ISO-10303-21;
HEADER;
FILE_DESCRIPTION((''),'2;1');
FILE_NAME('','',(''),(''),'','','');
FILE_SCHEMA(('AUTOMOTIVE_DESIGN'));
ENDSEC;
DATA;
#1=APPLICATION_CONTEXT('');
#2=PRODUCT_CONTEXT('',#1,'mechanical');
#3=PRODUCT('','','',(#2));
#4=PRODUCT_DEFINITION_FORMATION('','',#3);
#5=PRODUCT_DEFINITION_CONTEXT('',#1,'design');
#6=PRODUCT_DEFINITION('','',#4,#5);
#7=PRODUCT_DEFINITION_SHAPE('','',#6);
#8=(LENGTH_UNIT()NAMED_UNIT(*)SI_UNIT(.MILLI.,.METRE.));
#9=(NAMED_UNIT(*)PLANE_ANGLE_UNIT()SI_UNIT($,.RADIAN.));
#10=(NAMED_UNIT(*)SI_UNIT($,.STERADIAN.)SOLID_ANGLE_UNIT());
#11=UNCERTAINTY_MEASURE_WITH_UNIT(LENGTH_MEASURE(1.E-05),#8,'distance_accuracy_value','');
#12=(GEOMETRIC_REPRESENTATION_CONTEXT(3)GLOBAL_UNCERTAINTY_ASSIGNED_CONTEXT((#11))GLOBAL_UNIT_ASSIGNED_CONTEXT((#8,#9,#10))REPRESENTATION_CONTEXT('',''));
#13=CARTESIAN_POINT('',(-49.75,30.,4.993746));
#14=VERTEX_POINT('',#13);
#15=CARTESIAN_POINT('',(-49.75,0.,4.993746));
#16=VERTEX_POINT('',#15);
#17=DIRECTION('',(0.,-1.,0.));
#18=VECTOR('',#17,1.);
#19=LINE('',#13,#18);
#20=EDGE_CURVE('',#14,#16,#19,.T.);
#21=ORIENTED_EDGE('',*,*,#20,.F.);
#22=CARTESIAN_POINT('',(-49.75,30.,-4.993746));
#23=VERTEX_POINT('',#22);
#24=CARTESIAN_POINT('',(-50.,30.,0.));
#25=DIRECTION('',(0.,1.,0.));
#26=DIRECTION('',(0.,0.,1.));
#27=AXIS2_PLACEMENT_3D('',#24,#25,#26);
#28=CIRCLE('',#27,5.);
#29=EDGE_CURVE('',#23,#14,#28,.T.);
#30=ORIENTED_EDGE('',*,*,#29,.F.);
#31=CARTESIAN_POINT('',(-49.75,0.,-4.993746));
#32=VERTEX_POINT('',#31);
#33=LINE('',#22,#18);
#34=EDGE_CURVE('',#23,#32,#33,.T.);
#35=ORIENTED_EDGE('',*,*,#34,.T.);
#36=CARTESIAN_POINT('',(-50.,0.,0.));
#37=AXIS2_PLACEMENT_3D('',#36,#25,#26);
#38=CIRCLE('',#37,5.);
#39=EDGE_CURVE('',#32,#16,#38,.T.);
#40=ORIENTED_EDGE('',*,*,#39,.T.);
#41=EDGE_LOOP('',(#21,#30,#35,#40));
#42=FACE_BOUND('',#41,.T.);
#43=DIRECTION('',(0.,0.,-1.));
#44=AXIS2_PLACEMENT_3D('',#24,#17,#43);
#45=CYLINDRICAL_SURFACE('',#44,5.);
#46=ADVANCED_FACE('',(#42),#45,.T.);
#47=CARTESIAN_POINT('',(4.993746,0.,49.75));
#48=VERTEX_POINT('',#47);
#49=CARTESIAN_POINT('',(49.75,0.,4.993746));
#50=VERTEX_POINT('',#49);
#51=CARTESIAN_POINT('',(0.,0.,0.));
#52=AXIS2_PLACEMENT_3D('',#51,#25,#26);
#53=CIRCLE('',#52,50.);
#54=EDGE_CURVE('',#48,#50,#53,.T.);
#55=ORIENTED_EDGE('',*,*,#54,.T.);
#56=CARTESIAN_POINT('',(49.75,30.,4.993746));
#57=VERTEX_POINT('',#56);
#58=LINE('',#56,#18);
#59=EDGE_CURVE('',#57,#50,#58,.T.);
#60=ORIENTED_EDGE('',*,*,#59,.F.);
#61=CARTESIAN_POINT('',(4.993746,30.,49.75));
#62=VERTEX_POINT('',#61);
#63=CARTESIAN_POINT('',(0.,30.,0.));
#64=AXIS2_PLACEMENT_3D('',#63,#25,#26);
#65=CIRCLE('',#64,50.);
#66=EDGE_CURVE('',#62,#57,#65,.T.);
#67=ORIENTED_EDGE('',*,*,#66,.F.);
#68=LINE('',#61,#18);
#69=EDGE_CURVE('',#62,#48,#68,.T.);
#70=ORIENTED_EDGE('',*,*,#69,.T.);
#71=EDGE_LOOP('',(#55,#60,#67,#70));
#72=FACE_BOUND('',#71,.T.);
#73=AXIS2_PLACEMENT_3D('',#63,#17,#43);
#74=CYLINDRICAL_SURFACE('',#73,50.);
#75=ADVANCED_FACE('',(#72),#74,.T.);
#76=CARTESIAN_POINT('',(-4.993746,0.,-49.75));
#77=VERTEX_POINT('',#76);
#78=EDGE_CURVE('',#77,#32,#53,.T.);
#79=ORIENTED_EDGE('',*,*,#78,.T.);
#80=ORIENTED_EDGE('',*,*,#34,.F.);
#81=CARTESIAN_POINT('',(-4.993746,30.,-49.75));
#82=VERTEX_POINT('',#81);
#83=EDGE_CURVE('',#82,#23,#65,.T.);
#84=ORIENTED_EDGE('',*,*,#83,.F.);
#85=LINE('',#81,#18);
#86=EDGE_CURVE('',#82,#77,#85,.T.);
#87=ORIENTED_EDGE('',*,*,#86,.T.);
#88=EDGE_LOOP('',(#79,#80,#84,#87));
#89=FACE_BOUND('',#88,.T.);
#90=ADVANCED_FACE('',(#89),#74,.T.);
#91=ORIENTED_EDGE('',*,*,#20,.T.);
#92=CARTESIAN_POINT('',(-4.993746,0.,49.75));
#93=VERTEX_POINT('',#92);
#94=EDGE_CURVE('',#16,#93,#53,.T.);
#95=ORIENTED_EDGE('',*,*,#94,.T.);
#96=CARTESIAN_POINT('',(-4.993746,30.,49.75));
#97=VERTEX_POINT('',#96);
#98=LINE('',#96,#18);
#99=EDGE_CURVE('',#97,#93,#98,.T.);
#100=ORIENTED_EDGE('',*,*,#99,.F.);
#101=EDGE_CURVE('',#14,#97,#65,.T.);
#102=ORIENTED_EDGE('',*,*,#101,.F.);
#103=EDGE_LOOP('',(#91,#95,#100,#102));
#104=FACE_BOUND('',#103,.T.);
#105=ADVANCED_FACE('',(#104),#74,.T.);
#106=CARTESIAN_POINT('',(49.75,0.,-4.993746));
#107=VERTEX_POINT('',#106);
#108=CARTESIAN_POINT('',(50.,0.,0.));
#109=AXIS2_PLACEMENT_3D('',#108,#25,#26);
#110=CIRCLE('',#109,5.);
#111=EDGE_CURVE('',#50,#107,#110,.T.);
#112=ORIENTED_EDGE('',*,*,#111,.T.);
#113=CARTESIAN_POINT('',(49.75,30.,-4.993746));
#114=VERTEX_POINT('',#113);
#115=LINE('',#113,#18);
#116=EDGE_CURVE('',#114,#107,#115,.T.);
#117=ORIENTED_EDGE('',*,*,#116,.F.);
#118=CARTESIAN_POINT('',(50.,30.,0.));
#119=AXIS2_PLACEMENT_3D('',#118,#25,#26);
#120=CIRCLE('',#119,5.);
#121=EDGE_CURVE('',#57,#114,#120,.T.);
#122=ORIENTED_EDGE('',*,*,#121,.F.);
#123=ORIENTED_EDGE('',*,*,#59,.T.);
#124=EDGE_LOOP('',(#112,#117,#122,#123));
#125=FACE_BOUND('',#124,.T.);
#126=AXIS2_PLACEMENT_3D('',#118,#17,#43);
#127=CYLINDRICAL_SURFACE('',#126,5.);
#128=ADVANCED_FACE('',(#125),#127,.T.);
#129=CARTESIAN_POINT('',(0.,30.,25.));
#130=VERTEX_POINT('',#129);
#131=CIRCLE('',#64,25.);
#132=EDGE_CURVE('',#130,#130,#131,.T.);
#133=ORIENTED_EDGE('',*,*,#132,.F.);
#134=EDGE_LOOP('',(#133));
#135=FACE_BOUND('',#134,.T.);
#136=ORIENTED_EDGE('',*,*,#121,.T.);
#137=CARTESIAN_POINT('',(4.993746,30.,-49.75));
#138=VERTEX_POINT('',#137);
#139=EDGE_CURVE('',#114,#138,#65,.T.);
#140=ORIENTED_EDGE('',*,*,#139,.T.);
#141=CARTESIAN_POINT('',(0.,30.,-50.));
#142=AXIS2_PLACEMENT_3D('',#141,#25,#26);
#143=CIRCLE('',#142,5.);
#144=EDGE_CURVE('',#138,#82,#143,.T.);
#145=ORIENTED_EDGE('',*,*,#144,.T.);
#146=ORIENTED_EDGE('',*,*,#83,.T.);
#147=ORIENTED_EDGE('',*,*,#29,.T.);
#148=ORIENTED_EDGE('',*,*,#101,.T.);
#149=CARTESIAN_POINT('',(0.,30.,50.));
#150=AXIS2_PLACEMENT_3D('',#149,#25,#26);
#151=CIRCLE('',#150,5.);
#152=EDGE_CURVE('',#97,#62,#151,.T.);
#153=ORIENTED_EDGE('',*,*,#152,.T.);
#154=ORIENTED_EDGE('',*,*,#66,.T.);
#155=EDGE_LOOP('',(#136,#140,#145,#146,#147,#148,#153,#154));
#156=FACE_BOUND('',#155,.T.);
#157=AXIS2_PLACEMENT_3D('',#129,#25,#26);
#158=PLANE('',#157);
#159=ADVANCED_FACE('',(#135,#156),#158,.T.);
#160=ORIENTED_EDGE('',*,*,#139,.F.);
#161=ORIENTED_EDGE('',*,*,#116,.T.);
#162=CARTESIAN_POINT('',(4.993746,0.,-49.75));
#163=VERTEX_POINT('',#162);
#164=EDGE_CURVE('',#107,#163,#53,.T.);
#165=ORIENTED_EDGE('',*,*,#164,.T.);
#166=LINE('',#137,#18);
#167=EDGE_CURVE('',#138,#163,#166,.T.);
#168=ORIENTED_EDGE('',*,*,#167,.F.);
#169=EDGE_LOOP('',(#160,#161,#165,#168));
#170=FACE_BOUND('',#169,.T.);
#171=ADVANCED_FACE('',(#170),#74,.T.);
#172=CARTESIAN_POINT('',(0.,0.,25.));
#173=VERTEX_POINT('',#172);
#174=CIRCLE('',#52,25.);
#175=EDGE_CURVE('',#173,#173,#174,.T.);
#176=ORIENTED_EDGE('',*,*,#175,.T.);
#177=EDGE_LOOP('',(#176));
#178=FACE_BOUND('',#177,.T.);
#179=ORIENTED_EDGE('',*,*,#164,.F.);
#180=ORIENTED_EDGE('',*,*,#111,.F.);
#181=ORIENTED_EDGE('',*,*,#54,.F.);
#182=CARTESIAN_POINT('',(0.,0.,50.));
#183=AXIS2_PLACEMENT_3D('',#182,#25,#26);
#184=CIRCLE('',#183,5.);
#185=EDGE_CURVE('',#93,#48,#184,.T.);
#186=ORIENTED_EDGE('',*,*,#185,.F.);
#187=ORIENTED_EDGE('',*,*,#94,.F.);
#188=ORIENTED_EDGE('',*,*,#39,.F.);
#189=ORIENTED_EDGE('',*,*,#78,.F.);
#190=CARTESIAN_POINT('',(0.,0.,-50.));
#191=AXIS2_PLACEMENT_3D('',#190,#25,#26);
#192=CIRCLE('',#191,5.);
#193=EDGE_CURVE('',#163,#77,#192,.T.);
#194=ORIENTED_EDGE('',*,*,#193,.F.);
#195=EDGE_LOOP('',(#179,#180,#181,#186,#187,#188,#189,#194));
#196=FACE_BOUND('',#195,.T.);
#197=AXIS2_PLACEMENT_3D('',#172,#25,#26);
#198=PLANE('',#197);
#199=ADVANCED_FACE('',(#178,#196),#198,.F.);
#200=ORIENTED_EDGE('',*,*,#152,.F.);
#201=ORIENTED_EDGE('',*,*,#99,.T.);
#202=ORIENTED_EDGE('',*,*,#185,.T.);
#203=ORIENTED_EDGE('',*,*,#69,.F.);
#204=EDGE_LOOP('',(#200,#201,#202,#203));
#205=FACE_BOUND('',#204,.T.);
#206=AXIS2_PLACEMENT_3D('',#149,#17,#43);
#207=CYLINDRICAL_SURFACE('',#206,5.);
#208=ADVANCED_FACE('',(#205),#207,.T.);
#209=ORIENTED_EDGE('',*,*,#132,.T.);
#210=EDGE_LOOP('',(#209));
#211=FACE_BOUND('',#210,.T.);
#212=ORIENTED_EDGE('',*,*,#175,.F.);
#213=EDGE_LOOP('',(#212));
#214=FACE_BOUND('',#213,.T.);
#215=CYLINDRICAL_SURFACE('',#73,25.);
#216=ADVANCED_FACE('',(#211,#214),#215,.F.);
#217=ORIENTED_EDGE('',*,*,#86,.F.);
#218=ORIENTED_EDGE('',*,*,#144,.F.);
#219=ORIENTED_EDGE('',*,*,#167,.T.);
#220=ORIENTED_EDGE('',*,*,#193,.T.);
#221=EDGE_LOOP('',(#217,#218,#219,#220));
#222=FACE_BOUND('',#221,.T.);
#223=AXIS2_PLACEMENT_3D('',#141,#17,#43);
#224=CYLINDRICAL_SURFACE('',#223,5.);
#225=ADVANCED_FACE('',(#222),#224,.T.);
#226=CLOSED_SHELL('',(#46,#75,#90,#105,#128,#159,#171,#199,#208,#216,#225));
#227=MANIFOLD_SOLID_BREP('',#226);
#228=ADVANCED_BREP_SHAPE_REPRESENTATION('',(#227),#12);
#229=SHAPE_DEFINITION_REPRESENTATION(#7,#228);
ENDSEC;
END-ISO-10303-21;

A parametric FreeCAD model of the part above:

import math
import FreeCAD as App
import Part
import Sketcher
from FreeCAD import Vector

doc = App.newDocument("Part")
body = doc.addObject("PartDesign::Body", "Body")

# Sketch on XZ plane
sketch1 = body.newObject("Sketcher::SketchObject", "Sketch")
sketch1.AttachmentSupport = (doc.getObject("XZ_Plane"), [""])
sketch1.MapMode = "FlatFace"
sketch1.addGeometry([
    Part.ArcOfCircle(Part.Circle(Vector(0, 0, 0), Vector(0, 0, 1), 50), math.radians(-174), math.radians(-96)),  # 0
    Part.ArcOfCircle(Part.Circle(Vector(-50, 0, 0), Vector(0, 0, 1), 5), math.radians(87), math.radians(273)),  # 1
    Part.ArcOfCircle(Part.Circle(Vector(0, 0, 0), Vector(0, 0, 1), 50), math.radians(96), math.radians(174)),  # 2
    Part.ArcOfCircle(Part.Circle(Vector(0, 50, 0), Vector(0, 0, 1), 5), math.radians(-3), math.radians(183)),  # 3
    Part.ArcOfCircle(Part.Circle(Vector(0, 0, 0), Vector(0, 0, 1), 50), math.radians(6), math.radians(84)),  # 4
    Part.ArcOfCircle(Part.Circle(Vector(50, 0, 0), Vector(0, 0, 1), 5), math.radians(-93), math.radians(93)),  # 5
    Part.ArcOfCircle(Part.Circle(Vector(0, 0, 0), Vector(0, 0, 1), 50), math.radians(-84), math.radians(-6)),  # 6
    Part.ArcOfCircle(Part.Circle(Vector(0, -50, 0), Vector(0, 0, 1), 5), math.radians(177), math.radians(363)),  # 7
    Part.Circle(Vector(0, 0, 0), Vector(0, 0, 1), 25),  # 8
], False)
sketch1.addConstraint([
    Sketcher.Constraint("Coincident", 0, 1, 1, 2),
    Sketcher.Constraint("Coincident", 1, 1, 2, 2),
    Sketcher.Constraint("Coincident", 2, 1, 3, 2),
    Sketcher.Constraint("Coincident", 3, 1, 4, 2),
    Sketcher.Constraint("Coincident", 4, 1, 5, 2),
    Sketcher.Constraint("Coincident", 5, 1, 6, 2),
    Sketcher.Constraint("Coincident", 6, 1, 7, 2),
    Sketcher.Constraint("Coincident", 7, 1, 0, 2),
    Sketcher.Constraint("Coincident", 0, 3, -1, 1),
    Sketcher.Constraint("Coincident", 2, 3, -1, 1),
    Sketcher.Constraint("Coincident", 4, 3, -1, 1),
    Sketcher.Constraint("Coincident", 6, 3, -1, 1),
    Sketcher.Constraint("Coincident", 8, 3, -1, 1),
    Sketcher.Constraint("Equal", 0, 2),
    Sketcher.Constraint("Equal", 1, 3),
    Sketcher.Constraint("Equal", 2, 4),
    Sketcher.Constraint("Equal", 3, 5),
    Sketcher.Constraint("Equal", 4, 6),
    Sketcher.Constraint("Equal", 5, 7),
    Sketcher.Constraint("Symmetric", 1, 3, 5, 3, -1, 1),
    Sketcher.Constraint("Symmetric", 3, 3, 7, 3, -1, 1),
    Sketcher.Constraint("PointOnObject", 1, 3, -1),
    Sketcher.Constraint("PointOnObject", 3, 3, -2),
    Sketcher.Constraint("Diameter", 8, 50.0),
    Sketcher.Constraint("Radius", 0, 50.0),
    Sketcher.Constraint("Radius", 1, 5.0),
    Sketcher.Constraint("DistanceX", 1, 3, -1, 1, 50.0),
    Sketcher.Constraint("DistanceY", -1, 1, 3, 3, 50.0),
])
pad1 = body.newObject("PartDesign::Pad", "Pad")
pad1.Profile = sketch1
pad1.Length = 30
pad1.Reversed = True

doc.recompute()
